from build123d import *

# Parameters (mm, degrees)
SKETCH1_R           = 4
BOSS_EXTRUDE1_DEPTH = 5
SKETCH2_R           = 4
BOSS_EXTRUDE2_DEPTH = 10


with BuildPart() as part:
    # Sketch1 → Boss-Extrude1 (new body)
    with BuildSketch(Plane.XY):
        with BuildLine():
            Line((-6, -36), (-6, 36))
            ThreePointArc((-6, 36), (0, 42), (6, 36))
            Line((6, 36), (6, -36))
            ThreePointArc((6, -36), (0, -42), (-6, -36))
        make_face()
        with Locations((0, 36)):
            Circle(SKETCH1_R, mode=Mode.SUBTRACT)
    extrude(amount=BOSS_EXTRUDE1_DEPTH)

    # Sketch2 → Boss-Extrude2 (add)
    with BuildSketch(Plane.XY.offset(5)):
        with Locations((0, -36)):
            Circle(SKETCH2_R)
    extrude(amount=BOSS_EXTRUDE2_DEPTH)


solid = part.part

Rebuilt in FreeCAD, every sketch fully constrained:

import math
import FreeCAD as App
import Part
import Sketcher
Q = App.Units.Quantity

doc = App.newDocument("Part")
body = doc.addObject("PartDesign::Body", "Body")

sketch1 = body.newObject("Sketcher::SketchObject", "Sketch")
sketch1.AttachmentSupport = (doc.getObject("XY_Plane"), [""])
sketch1.MapMode = "FlatFace"
sketch1.addGeometry(Part.LineSegment(App.Vector(-6, 36, 0), App.Vector(-6, -36, 0)), False)
sketch1.addGeometry(Part.ArcOfCircle(Part.Circle(App.Vector(0, -36, 0), App.Vector(0, 0, 1), 6), math.radians(180), math.radians(360)), False)
sketch1.addGeometry(Part.LineSegment(App.Vector(6, -36, 0), App.Vector(6, 36, 0)), False)
sketch1.addGeometry(Part.ArcOfCircle(Part.Circle(App.Vector(0, 36, 0), App.Vector(0, 0, 1), 6), math.radians(0), math.radians(180)), False)
sketch1.addGeometry(Part.Circle(App.Vector(0, 36, 0), App.Vector(0, 0, 1), 4), False)
sketch1.addConstraint(Sketcher.Constraint("Tangent", 0, 2, 1, 1))
sketch1.addConstraint(Sketcher.Constraint("Tangent", 1, 2, 2, 1))
sketch1.addConstraint(Sketcher.Constraint("Tangent", 2, 2, 3, 1))
sketch1.addConstraint(Sketcher.Constraint("Tangent", 3, 2, 0, 1))
sketch1.addConstraint(Sketcher.Constraint("Vertical", 0))
sketch1.addConstraint(Sketcher.Constraint("Vertical", 2))
sketch1.addConstraint(Sketcher.Constraint("Coincident", 4, 3, 3, 3))
sketch1.addConstraint(Sketcher.Constraint("Symmetric", 1, 3, 3, 3, -1, 1))
sketch1.addConstraint(Sketcher.Constraint("Diameter", 4, Q("8 mm")))
sketch1.addConstraint(Sketcher.Constraint("Radius", 1, Q("6 mm")))
sketch1.addConstraint(Sketcher.Constraint("DistanceY", 0, 2, 0, 1, Q("72 mm")))
pad1 = body.newObject("PartDesign::Pad", "Pad")
pad1.Profile = sketch1
pad1.Length = 5

sketch2 = body.newObject("Sketcher::SketchObject", "Sketch001")
sketch2.AttachmentSupport = (doc.getObject("XY_Plane"), [""])
sketch2.MapMode = "FlatFace"
sketch2.AttachmentOffset = App.Placement(App.Vector(0, 0, 5), App.Rotation())
sketch2.addGeometry(Part.Circle(App.Vector(0, -36, 0), App.Vector(0, 0, 1), 4), False)
sketch2.addConstraint(Sketcher.Constraint("PointOnObject", 0, 3, -2))
sketch2.addConstraint(Sketcher.Constraint("Diameter", 0, Q("8 mm")))
sketch2.addConstraint(Sketcher.Constraint("DistanceY", 0, 3, -1, 1, Q("36 mm")))
pad2 = body.newObject("PartDesign::Pad", "Pad001")
pad2.Profile = sketch2
pad2.Length = 10

doc.recompute()
